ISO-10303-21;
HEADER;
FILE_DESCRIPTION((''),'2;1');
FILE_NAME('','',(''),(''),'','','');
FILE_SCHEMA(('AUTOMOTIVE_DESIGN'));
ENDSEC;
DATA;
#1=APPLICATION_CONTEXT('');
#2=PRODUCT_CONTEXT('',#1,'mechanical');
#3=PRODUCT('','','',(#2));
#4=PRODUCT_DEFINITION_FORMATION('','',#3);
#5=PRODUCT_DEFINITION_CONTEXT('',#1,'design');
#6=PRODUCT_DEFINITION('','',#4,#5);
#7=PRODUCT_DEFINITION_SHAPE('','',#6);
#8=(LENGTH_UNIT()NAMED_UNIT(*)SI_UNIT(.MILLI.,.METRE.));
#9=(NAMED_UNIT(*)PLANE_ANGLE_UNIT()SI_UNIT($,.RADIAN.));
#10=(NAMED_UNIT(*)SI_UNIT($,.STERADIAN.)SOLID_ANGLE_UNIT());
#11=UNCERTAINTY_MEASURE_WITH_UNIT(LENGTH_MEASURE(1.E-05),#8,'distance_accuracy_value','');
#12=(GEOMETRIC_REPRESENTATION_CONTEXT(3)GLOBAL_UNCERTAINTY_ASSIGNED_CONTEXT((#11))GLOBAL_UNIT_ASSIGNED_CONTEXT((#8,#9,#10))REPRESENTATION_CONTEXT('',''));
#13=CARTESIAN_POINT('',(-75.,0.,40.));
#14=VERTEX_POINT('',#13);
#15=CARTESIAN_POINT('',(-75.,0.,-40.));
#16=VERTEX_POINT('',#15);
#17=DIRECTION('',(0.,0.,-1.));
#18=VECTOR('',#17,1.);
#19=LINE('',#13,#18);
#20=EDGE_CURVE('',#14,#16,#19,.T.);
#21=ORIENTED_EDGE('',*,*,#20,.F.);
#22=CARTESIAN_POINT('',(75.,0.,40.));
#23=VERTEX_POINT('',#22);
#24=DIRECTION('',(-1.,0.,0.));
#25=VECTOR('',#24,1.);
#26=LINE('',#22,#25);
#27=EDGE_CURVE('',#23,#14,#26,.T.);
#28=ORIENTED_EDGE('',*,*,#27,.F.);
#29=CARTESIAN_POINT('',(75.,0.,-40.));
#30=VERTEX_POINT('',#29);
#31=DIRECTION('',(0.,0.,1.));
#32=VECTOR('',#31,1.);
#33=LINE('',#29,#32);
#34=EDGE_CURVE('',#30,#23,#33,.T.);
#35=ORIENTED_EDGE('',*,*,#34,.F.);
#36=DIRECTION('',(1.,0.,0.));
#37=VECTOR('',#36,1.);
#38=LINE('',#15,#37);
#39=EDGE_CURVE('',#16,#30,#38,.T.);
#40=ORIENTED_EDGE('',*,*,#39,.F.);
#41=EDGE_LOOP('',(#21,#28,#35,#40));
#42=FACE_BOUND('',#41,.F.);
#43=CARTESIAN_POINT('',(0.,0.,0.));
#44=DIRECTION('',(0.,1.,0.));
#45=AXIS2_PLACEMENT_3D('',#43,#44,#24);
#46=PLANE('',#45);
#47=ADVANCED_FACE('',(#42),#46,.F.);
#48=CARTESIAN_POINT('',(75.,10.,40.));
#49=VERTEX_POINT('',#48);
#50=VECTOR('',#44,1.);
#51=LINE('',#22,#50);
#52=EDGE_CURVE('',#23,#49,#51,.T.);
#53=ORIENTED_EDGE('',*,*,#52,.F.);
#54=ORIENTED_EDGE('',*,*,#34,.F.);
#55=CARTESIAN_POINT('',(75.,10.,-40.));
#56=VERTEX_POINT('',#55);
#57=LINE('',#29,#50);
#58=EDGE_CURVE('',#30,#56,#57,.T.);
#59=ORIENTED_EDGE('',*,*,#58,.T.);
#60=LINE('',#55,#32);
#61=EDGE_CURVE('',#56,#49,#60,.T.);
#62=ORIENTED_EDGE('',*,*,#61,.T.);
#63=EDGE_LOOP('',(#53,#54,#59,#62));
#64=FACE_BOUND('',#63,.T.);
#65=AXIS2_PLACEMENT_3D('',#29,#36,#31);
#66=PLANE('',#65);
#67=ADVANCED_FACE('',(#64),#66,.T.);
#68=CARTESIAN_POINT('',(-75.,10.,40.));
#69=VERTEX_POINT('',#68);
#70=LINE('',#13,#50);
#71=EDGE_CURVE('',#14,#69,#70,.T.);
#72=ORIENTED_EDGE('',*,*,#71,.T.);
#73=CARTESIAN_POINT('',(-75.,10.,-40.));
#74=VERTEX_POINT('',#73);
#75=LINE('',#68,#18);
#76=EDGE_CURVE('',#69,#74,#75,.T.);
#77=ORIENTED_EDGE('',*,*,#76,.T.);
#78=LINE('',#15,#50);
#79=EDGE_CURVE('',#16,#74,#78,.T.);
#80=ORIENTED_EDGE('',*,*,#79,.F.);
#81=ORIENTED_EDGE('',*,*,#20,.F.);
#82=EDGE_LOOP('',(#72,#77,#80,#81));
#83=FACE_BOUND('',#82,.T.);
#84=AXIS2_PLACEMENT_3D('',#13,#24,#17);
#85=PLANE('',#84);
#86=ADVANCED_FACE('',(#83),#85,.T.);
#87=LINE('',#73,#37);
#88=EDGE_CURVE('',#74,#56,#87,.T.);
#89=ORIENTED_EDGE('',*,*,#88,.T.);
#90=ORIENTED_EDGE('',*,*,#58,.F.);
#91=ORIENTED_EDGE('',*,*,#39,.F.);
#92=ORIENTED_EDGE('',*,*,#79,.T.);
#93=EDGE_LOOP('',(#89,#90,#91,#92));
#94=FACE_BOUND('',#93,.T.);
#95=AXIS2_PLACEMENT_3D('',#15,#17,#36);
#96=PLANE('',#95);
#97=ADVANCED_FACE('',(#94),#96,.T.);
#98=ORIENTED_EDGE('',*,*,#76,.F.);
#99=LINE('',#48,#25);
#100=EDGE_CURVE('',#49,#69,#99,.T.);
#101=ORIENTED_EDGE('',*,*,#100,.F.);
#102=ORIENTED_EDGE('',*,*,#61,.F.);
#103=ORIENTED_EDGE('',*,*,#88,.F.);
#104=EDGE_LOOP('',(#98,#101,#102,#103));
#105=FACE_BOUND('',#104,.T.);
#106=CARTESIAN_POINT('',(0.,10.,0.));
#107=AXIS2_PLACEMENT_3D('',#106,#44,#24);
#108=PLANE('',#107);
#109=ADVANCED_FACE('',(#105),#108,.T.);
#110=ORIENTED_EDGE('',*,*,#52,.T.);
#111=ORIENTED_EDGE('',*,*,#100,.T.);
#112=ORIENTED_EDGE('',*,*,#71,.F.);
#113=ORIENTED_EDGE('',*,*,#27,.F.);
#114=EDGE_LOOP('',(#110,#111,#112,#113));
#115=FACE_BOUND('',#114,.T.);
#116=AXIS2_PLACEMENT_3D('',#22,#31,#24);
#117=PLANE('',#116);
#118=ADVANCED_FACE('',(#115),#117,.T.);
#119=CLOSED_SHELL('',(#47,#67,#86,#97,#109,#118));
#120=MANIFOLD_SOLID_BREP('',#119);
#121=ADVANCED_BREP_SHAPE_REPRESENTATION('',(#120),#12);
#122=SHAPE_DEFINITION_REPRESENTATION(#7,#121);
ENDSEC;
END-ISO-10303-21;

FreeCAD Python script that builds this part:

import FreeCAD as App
import Part
import Sketcher
Q = App.Units.Quantity

doc = App.newDocument("Part")
body = doc.addObject("PartDesign::Body", "Body")

sketch1 = doc.addObject("Sketcher::SketchObject", "Sketch")
body.addObject(sketch1)
sketch1.AttachmentSupport = (doc.XZ_Plane, [""])
sketch1.MapMode = "FlatFace"
sketch1.addGeometry([
    Part.LineSegment(App.Vector(75, -40, 0), App.Vector(-75, -40, 0)),
    Part.LineSegment(App.Vector(-75, -40, 0), App.Vector(-75, 40, 0)),
    Part.LineSegment(App.Vector(-75, 40, 0), App.Vector(75, 40, 0)),
    Part.LineSegment(App.Vector(75, 40, 0), App.Vector(75, -40, 0)),
], False)
sketch1.addConstraint([
    Sketcher.Constraint("Coincident", 0, 2, 1, 1),
    Sketcher.Constraint("Coincident", 1, 2, 2, 1),
    Sketcher.Constraint("Coincident", 2, 2, 3, 1),
    Sketcher.Constraint("Coincident", 3, 2, 0, 1),
    Sketcher.Constraint("Horizontal", 0),
    Sketcher.Constraint("Vertical", 1),
    Sketcher.Constraint("Horizontal", 2),
    Sketcher.Constraint("Vertical", 3),
    Sketcher.Constraint("Symmetric", 0, 2, 2, 2, -1, 1),
    Sketcher.Constraint("DistanceX", 0, 2, 0, 1, Q("150 mm")),
    Sketcher.Constraint("DistanceY", 1, 1, 1, 2, Q("80 mm")),
])
pad1 = doc.addObject("PartDesign::Pad", "Pad")
body.addObject(pad1)
pad1.Profile = sketch1
pad1.Length = 10
pad1.Reversed = True

doc.recompute()
